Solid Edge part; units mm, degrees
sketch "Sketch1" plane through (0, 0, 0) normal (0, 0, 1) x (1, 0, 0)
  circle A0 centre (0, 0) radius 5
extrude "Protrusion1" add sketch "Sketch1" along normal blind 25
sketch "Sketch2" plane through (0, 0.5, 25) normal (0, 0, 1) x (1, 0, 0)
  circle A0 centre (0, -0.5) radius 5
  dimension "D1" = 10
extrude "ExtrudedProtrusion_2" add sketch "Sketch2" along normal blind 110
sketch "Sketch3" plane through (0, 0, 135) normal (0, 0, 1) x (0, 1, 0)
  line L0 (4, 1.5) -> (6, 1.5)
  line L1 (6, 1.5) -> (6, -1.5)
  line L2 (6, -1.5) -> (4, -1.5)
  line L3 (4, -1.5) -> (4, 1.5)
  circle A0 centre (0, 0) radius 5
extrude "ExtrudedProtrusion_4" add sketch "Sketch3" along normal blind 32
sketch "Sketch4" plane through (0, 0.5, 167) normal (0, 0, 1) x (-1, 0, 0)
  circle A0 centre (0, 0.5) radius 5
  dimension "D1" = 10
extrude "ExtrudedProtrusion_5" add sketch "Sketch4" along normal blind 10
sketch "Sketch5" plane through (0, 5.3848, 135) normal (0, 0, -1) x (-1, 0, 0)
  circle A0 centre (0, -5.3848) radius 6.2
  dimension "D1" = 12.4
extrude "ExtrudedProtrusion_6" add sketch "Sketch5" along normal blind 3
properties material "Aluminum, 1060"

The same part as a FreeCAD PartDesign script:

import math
import FreeCAD as App
import Part
import Sketcher
from FreeCAD import Vector

doc = App.newDocument("Part")
params = doc.addObject("Spreadsheet::Sheet", "Params")
for row, (alias, value) in enumerate([
    ("sketch1_diameter", "10 mm"),
    ("pad1_length", "25 mm"),
    ("sketch2_diameter", "10 mm"),
    ("pad2_length", "110 mm"),
    ("sketch3_radius", "5 mm"),
    ("sketch3_width", "3 mm"),
    ("pad3_length", "32 mm"),
    ("sketch4_diameter", "10 mm"),
    ("pad4_length", "10 mm"),
    ("sketch5_diameter", "12.4 mm"),
    ("pad5_length", "3 mm"),
], start=1):
    params.set(f"A{row}", alias)
    params.set(f"B{row}", "=" + value)
    params.setAlias(f"B{row}", alias)

body = doc.addObject("PartDesign::Body", "Body")

sketch1 = body.newObject("Sketcher::SketchObject", "Sketch")
sketch1.AttachmentSupport = (doc.getObject("XY_Plane"), [""])
sketch1.MapMode = "FlatFace"
sketch1.addGeometry(Part.Circle(Vector(0, 0, 0), Vector(0, 0, 1), 5), False)
sketch1.addConstraint([
    Sketcher.Constraint("Coincident", 0, 3, -1, 1),
    Sketcher.Constraint("Diameter", 0, 10.0),
])
sketch1.setExpression("Constraints[1]", "Params.sketch1_diameter")
pad1 = body.newObject("PartDesign::Pad", "Pad")
pad1.Profile = sketch1
pad1.setExpression("Length", "Params.pad1_length")

sketch2 = body.newObject("Sketcher::SketchObject", "Sketch001")
sketch2.AttachmentSupport = (doc.getObject("XY_Plane"), [""])
sketch2.MapMode = "FlatFace"
sketch2.AttachmentOffset = App.Placement(Vector(0, 0, 25), App.Rotation())
sketch2.addGeometry(Part.Circle(Vector(0, 0, 0), Vector(0, 0, 1), 5), False)
sketch2.addConstraint([
    Sketcher.Constraint("Coincident", 0, 3, -1, 1),
    Sketcher.Constraint("Diameter", 0, 10.0),
])
sketch2.setExpression("Constraints[1]", "Params.sketch2_diameter")
pad2 = body.newObject("PartDesign::Pad", "Pad001")
pad2.Profile = sketch2
pad2.setExpression("Length", "Params.pad2_length")

sketch3 = body.newObject("Sketcher::SketchObject", "Sketch002")
sketch3.AttachmentSupport = (doc.getObject("XY_Plane"), [""])
sketch3.MapMode = "FlatFace"
sketch3.AttachmentOffset = App.Placement(Vector(0, 0, 135), App.Rotation())
sketch3.addGeometry([
    Part.ArcOfCircle(Part.Circle(Vector(0, 0, 0), Vector(0, 0, 1), 5), math.radians(107.457603), math.radians(432.542397)),
    Part.LineSegment(Vector(1.5, 4.769696, 0), Vector(1.5, 6, 0)),
    Part.LineSegment(Vector(1.5, 6, 0), Vector(-1.5, 6, 0)),
    Part.LineSegment(Vector(-1.5, 6, 0), Vector(-1.5, 4.769696, 0)),
], False)
sketch3.addConstraint([
    Sketcher.Constraint("Coincident", 0, 2, 1, 1),
    Sketcher.Constraint("Coincident", 1, 2, 2, 1),
    Sketcher.Constraint("Coincident", 2, 2, 3, 1),
    Sketcher.Constraint("Coincident", 3, 2, 0, 1),
    Sketcher.Constraint("Vertical", 1),
    Sketcher.Constraint("Horizontal", 2),
    Sketcher.Constraint("Vertical", 3),
    Sketcher.Constraint("Coincident", 0, 3, -1, 1),
    Sketcher.Constraint("Horizontal", 0, 2, 3, 2),
    Sketcher.Constraint("Radius", 0, 5.0),
    Sketcher.Constraint("DistanceX", 2, 2, 2, 1, 3.0),
    Sketcher.Constraint("DistanceY", -1, 1, 1, 2, 6.0),
])
sketch3.setExpression("Constraints[9]", "Params.sketch3_radius")
sketch3.setExpression("Constraints[10]", "Params.sketch3_width")
pad3 = body.newObject("PartDesign::Pad", "Pad002")
pad3.Profile = sketch3
pad3.setExpression("Length", "Params.pad3_length")

sketch4 = body.newObject("Sketcher::SketchObject", "Sketch003")
sketch4.AttachmentSupport = (doc.getObject("XY_Plane"), [""])
sketch4.MapMode = "FlatFace"
sketch4.AttachmentOffset = App.Placement(Vector(0, 0, 167), App.Rotation())
sketch4.addGeometry(Part.Circle(Vector(0, 0, 0), Vector(0, 0, 1), 5), False)
sketch4.addConstraint([
    Sketcher.Constraint("Coincident", 0, 3, -1, 1),
    Sketcher.Constraint("Diameter", 0, 10.0),
])
sketch4.setExpression("Constraints[1]", "Params.sketch4_diameter")
pad4 = body.newObject("PartDesign::Pad", "Pad003")
pad4.Profile = sketch4
pad4.setExpression("Length", "Params.pad4_length")

sketch5 = body.newObject("Sketcher::SketchObject", "Sketch004")
sketch5.AttachmentSupport = (doc.getObject("XY_Plane"), [""])
sketch5.MapMode = "FlatFace"
sketch5.AttachmentOffset = App.Placement(Vector(0, 0, 135), App.Rotation())
sketch5.addGeometry(Part.Circle(Vector(0, 0, 0), Vector(0, 0, 1), 6.2), False)
sketch5.addConstraint([
    Sketcher.Constraint("Coincident", 0, 3, -1, 1),
    Sketcher.Constraint("Diameter", 0, 12.4),
])
sketch5.setExpression("Constraints[1]", "Params.sketch5_diameter")
pad5 = body.newObject("PartDesign::Pad", "Pad004")
pad5.Profile = sketch5
pad5.setExpression("Length", "Params.pad5_length")
pad5.Reversed = True

doc.recompute()
